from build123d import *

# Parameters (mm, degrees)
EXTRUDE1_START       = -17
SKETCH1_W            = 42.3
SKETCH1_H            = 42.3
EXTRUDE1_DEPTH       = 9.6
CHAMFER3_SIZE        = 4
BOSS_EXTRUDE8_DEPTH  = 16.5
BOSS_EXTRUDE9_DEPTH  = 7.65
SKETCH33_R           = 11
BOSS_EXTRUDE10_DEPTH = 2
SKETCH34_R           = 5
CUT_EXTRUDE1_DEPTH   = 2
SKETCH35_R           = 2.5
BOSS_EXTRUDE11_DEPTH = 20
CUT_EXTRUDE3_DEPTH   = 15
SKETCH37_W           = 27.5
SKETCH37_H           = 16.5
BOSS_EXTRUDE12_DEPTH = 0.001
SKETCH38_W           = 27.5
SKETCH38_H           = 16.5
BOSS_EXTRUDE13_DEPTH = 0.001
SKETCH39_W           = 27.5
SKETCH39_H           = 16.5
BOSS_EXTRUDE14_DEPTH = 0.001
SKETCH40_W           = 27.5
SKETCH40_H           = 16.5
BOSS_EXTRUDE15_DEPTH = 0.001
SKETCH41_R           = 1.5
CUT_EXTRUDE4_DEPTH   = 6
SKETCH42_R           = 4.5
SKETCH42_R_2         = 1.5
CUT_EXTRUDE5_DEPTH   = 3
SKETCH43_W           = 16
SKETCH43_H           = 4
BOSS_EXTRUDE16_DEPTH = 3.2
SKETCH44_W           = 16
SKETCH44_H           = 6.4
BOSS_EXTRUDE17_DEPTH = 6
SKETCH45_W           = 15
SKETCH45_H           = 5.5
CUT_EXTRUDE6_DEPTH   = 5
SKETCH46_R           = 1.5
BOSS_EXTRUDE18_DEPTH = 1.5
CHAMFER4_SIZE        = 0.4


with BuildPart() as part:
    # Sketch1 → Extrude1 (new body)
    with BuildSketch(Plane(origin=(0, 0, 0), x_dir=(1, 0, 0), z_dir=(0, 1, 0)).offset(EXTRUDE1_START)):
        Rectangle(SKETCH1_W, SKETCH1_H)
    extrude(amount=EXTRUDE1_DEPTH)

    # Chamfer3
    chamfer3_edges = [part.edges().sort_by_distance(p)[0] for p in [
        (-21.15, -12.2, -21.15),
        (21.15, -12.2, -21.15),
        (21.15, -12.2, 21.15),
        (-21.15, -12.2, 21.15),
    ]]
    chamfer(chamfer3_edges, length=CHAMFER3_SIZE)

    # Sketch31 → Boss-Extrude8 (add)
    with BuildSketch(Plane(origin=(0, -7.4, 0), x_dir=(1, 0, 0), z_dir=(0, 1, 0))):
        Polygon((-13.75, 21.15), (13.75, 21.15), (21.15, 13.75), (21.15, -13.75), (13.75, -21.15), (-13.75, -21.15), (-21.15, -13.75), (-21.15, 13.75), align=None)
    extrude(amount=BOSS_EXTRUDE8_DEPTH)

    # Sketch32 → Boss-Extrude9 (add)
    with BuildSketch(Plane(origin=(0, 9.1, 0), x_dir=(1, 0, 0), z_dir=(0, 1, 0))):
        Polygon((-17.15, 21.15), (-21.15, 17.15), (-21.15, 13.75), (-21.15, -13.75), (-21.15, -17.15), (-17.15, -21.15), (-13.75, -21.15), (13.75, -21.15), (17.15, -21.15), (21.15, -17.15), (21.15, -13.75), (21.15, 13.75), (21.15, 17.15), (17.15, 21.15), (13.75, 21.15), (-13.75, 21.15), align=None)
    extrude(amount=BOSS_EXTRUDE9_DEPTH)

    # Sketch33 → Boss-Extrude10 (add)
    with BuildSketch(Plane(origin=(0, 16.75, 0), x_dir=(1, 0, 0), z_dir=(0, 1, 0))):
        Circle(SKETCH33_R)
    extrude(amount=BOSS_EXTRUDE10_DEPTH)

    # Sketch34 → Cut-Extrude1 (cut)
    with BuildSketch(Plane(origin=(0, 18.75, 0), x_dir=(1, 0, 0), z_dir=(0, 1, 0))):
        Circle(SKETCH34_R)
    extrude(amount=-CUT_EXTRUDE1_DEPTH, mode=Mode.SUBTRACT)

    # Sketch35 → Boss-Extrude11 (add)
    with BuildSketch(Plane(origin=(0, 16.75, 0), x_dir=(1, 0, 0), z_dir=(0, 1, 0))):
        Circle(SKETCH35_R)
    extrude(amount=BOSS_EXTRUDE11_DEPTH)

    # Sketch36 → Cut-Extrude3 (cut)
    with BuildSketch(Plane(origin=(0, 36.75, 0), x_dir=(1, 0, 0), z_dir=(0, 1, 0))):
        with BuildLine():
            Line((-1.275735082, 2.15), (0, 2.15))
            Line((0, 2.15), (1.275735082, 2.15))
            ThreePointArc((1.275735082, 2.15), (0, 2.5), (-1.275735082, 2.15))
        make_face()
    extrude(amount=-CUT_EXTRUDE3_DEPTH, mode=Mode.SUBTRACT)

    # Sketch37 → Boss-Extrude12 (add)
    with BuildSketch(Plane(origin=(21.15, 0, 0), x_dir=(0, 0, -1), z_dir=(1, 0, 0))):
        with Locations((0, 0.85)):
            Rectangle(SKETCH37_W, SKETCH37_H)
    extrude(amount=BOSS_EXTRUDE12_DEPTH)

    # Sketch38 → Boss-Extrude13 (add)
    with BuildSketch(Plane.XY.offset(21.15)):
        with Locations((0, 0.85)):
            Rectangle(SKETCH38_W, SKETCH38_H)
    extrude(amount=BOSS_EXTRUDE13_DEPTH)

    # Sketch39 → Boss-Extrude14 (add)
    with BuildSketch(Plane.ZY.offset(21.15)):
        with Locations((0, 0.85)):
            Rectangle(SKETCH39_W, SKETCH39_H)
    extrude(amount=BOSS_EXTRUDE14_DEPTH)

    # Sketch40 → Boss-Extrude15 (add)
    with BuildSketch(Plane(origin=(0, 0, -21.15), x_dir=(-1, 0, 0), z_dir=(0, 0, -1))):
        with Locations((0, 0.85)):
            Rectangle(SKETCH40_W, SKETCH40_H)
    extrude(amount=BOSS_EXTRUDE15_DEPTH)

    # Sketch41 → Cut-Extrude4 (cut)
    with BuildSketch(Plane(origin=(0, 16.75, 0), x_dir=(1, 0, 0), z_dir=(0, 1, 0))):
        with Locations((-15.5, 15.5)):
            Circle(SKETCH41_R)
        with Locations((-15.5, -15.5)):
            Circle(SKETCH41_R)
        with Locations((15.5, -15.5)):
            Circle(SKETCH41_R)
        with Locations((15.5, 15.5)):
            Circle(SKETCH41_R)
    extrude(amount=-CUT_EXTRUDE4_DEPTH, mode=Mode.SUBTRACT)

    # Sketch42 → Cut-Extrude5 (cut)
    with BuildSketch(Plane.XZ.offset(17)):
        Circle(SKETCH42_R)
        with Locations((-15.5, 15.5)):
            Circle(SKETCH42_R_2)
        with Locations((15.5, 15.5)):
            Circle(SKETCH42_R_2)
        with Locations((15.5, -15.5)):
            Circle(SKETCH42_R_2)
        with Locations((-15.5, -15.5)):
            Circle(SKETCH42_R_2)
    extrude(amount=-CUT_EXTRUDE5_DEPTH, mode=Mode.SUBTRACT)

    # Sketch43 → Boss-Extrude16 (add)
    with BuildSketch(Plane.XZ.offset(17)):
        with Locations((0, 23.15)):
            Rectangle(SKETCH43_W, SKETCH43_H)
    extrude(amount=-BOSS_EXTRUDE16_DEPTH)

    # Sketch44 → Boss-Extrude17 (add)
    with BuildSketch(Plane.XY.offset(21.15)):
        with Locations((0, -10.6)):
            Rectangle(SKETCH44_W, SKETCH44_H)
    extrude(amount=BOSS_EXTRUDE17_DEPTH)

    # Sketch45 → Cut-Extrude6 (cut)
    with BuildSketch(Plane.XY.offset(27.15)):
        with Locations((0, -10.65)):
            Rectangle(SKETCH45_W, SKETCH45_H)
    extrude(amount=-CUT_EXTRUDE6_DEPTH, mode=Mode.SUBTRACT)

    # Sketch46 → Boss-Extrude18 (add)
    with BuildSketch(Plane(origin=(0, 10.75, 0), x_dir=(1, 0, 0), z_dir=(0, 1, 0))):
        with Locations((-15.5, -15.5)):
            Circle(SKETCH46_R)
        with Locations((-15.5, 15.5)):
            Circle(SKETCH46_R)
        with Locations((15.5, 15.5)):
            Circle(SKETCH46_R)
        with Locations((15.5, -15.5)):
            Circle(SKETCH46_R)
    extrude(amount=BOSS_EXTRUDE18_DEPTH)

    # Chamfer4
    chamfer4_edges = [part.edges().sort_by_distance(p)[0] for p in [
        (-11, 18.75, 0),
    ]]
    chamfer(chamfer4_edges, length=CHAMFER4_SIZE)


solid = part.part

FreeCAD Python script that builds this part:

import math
import FreeCAD as App
import Part
import Sketcher
from FreeCAD import Vector
Q = App.Units.Quantity


def edges_at(feature, points):
    """Names of the edges that pass closest to the given points."""
    edges = feature.Shape.Edges
    near = lambda p: min(range(len(edges)), key=lambda i: edges[i].distToShape(Part.Vertex(*p))[0])
    return sorted({f"Edge{near(p) + 1}" for p in points})


def add_polygon(sketch, points):
    """Adds a closed chain of lines whose ends are joined by coincident constraints."""
    first, n = sketch.GeometryCount, len(points)
    for a, b in zip(points, points[1:] + points[:1]):
        sketch.addGeometry(Part.LineSegment(App.Vector(*a, 0), App.Vector(*b, 0)), False)
    for i in range(n):
        sketch.addConstraint(Sketcher.Constraint("Coincident", first + i, 2, first + (i + 1) % n, 1))

doc = App.newDocument("Part")
params = doc.addObject("Spreadsheet::Sheet", "Params")
for row, (alias, value) in enumerate([
    ("sketch1_width", "42.3 mm"),
    ("pad1_length", "9.6 mm"),
    ("chamfer_size", "4 mm"),
    ("sketch2_width", "27.5 mm"),
    ("pad2_length", "16.5 mm"),
    ("sketch3_width", "34.3 mm"),
    ("pad3_length", "7.65 mm"),
    ("sketch4_diameter", "22 mm"),
    ("pad4_length", "2 mm"),
    ("sketch5_diameter", "10 mm"),
    ("pocket1_length", "2 mm"),
    ("sketch6_diameter", "5 mm"),
    ("pad5_length", "20 mm"),
    ("sketch7_radius", "2.5 mm"),
    ("pocket2_length", "15 mm"),
    ("sketch8_width", "16.5 mm"),
    ("sketch8_height", "27.5 mm"),
    ("pad6_length", "0.001 mm"),
    ("sketch9_width", "27.5 mm"),
    ("sketch9_height", "16.5 mm"),
    ("pad7_length", "0.001 mm"),
    ("sketch10_width", "16.5 mm"),
    ("sketch10_height", "27.5 mm"),
    ("pad8_length", "0.001 mm"),
    ("sketch11_width", "27.5 mm"),
    ("sketch11_height", "16.5 mm"),
    ("pad9_length", "0.001 mm"),
    ("sketch12_diameter", "3 mm"),
    ("pocket3_length", "6 mm"),
    ("sketch13_diameter", "9 mm"),
    ("sketch13_diameter2", "3 mm"),
    ("pocket4_length", "3 mm"),
    ("sketch14_width", "16 mm"),
    ("sketch14_height", "4 mm"),
    ("pad10_length", "3.2 mm"),
    ("sketch15_width", "16 mm"),
    ("sketch15_height", "6.4 mm"),
    ("pad11_length", "6 mm"),
    ("sketch16_width", "15 mm"),
    ("sketch16_height", "5.5 mm"),
    ("pocket5_length", "5 mm"),
    ("sketch17_diameter", "3 mm"),
    ("pad12_length", "1.5 mm"),
    ("chamfer2_size", "0.4 mm"),
], start=1):
    params.set(f"A{row}", alias)
    params.set(f"B{row}", "=" + value)
    params.setAlias(f"B{row}", alias)

body = doc.addObject("PartDesign::Body", "Body")

sketch1 = body.newObject("Sketcher::SketchObject", "Sketch")
sketch1.AttachmentSupport = (doc.getObject("XZ_Plane"), [""])
sketch1.MapMode = "FlatFace"
sketch1.AttachmentOffset = App.Placement(Vector(0, 0, 17), App.Rotation())
add_polygon(sketch1, [(-21.15, -21.15), (-21.15, 21.15), (21.15, 21.15), (21.15, -21.15)])
sketch1.addConstraint(Sketcher.Constraint("Vertical", 0))
sketch1.addConstraint(Sketcher.Constraint("Horizontal", 1))
sketch1.addConstraint(Sketcher.Constraint("Vertical", 2))
sketch1.addConstraint(Sketcher.Constraint("Horizontal", 3))
sketch1.addConstraint(Sketcher.Constraint("Symmetric", 0, 2, 2, 2, -1, 1))
sketch1.addConstraint(Sketcher.Constraint("Equal", 3, 0))
sketch1.addConstraint(Sketcher.Constraint("DistanceX", 1, 1, 1, 2, Q("42.3 mm")))
sketch1.setExpression("Constraints[10]", "Params.sketch1_width")
pad1 = body.newObject("PartDesign::Pad", "Pad")
pad1.Profile = sketch1
pad1.setExpression("Length", "Params.pad1_length")
pad1.Reversed = True
doc.recompute()

chamfer = body.newObject("PartDesign::Chamfer", "Chamfer")
chamfer.Base = (pad1, edges_at(pad1, [
    (-21.15, -12.2, -21.15),
    (21.15, -12.2, -21.15),
    (21.15, -12.2, 21.15),
    (-21.15, -12.2, 21.15),
]))
chamfer.setExpression("Size", "Params.chamfer_size")

sketch2 = body.newObject("Sketcher::SketchObject", "Sketch001")
sketch2.AttachmentSupport = (doc.getObject("XZ_Plane"), [""])
sketch2.MapMode = "FlatFace"
sketch2.AttachmentOffset = App.Placement(Vector(0, 0, 7.4), App.Rotation())
add_polygon(sketch2, [(13.75, -21.15), (-13.75, -21.15), (-21.15, -13.75), (-21.15, 13.75), (-13.75, 21.15), (13.75, 21.15), (21.15, 13.75), (21.15, -13.75)])
sketch2.addConstraint(Sketcher.Constraint("Horizontal", 0))
sketch2.addConstraint(Sketcher.Constraint("Vertical", 2))
sketch2.addConstraint(Sketcher.Constraint("Horizontal", 4))
sketch2.addConstraint(Sketcher.Constraint("Vertical", 6))
sketch2.addConstraint(Sketcher.Constraint("Symmetric", 0, 2, 4, 2, -1, 1))
sketch2.addConstraint(Sketcher.Constraint("Symmetric", 1, 2, 5, 2, -1, 1))
sketch2.addConstraint(Sketcher.Constraint("Perpendicular", 1, 3))
sketch2.addConstraint(Sketcher.Constraint("Perpendicular", 5, 7))
sketch2.addConstraint(Sketcher.Constraint("Horizontal", 2, 2, 5, 2))
sketch2.addConstraint(Sketcher.Constraint("Horizontal", 1, 2, 6, 2))
sketch2.addConstraint(Sketcher.Constraint("Vertical", 0, 2, 3, 2))
sketch2.addConstraint(Sketcher.Constraint("Equal", 4, 2))
sketch2.addConstraint(Sketcher.Constraint("DistanceX", 0, 2, 0, 1, Q("27.5 mm")))
sketch2.addConstraint(Sketcher.Constraint("DistanceX", 1, 2, 0, 2, Q("7.4 mm")))
sketch2.setExpression("Constraints[20]", "Params.sketch2_width")
pad2 = body.newObject("PartDesign::Pad", "Pad001")
pad2.Profile = sketch2
pad2.setExpression("Length", "Params.pad2_length")
pad2.Reversed = True

sketch3 = body.newObject("Sketcher::SketchObject", "Sketch002")
sketch3.AttachmentSupport = (doc.getObject("XZ_Plane"), [""])
sketch3.MapMode = "FlatFace"
sketch3.AttachmentOffset = App.Placement(Vector(0, 0, -9.1), App.Rotation())
add_polygon(sketch3, [(-17.15, -21.15), (-21.15, -17.15), (-21.15, 17.15), (-17.15, 21.15), (17.15, 21.15), (21.15, 17.15), (21.15, -17.15), (17.15, -21.15)])
sketch3.addConstraint(Sketcher.Constraint("Vertical", 1))
sketch3.addConstraint(Sketcher.Constraint("Horizontal", 3))
sketch3.addConstraint(Sketcher.Constraint("Vertical", 5))
sketch3.addConstraint(Sketcher.Constraint("Horizontal", 7))
sketch3.addConstraint(Sketcher.Constraint("Symmetric", 0, 2, 4, 2, -1, 1))
sketch3.addConstraint(Sketcher.Constraint("Symmetric", 2, 2, 6, 2, -1, 1))
sketch3.addConstraint(Sketcher.Constraint("Perpendicular", 0, 2))
sketch3.addConstraint(Sketcher.Constraint("Perpendicular", 2, 4))
sketch3.addConstraint(Sketcher.Constraint("Perpendicular", 4, 6))
sketch3.addConstraint(Sketcher.Constraint("Horizontal", 1, 2, 4, 2))
sketch3.addConstraint(Sketcher.Constraint("Vertical", 3, 2, 6, 2))
sketch3.addConstraint(Sketcher.Constraint("Equal", 7, 1))
sketch3.addConstraint(Sketcher.Constraint("DistanceX", 3, 1, 3, 2, Q("34.3 mm")))
sketch3.addConstraint(Sketcher.Constraint("DistanceX", 1, 2, 2, 2, Q("4 mm")))
sketch3.setExpression("Constraints[20]", "Params.sketch3_width")
pad3 = body.newObject("PartDesign::Pad", "Pad002")
pad3.Profile = sketch3
pad3.setExpression("Length", "Params.pad3_length")
pad3.Reversed = True

sketch4 = body.newObject("Sketcher::SketchObject", "Sketch003")
sketch4.AttachmentSupport = (doc.getObject("XZ_Plane"), [""])
sketch4.MapMode = "FlatFace"
sketch4.AttachmentOffset = App.Placement(Vector(0, 0, -16.75), App.Rotation())
sketch4.addGeometry(Part.Circle(Vector(0, 0, 0), Vector(0, 0, 1), 11), False)
sketch4.addConstraint(Sketcher.Constraint("Coincident", 0, 3, -1, 1))
sketch4.addConstraint(Sketcher.Constraint("Diameter", 0, Q("22 mm")))
sketch4.setExpression("Constraints[1]", "Params.sketch4_diameter")
pad4 = body.newObject("PartDesign::Pad", "Pad003")
pad4.Profile = sketch4
pad4.setExpression("Length", "Params.pad4_length")
pad4.Reversed = True

sketch5 = body.newObject("Sketcher::SketchObject", "Sketch004")
sketch5.AttachmentSupport = (doc.getObject("XZ_Plane"), [""])
sketch5.MapMode = "FlatFace"
sketch5.AttachmentOffset = App.Placement(Vector(0, 0, -18.75), App.Rotation())
sketch5.addGeometry(Part.Circle(Vector(0, 0, 0), Vector(0, 0, 1), 5), False)
sketch5.addConstraint(Sketcher.Constraint("Coincident", 0, 3, -1, 1))
sketch5.addConstraint(Sketcher.Constraint("Diameter", 0, Q("10 mm")))
sketch5.setExpression("Constraints[1]", "Params.sketch5_diameter")
pocket1 = body.newObject("PartDesign::Pocket", "Pocket")
pocket1.Profile = sketch5
pocket1.setExpression("Length", "Params.pocket1_length")
pocket1.Reversed = True

sketch6 = body.newObject("Sketcher::SketchObject", "Sketch005")
sketch6.AttachmentSupport = (doc.getObject("XZ_Plane"), [""])
sketch6.MapMode = "FlatFace"
sketch6.AttachmentOffset = App.Placement(Vector(0, 0, -16.75), App.Rotation())
sketch6.addGeometry(Part.Circle(Vector(0, 0, 0), Vector(0, 0, 1), 2.5), False)
sketch6.addConstraint(Sketcher.Constraint("Coincident", 0, 3, -1, 1))
sketch6.addConstraint(Sketcher.Constraint("Diameter", 0, Q("5 mm")))
sketch6.setExpression("Constraints[1]", "Params.sketch6_diameter")
pad5 = body.newObject("PartDesign::Pad", "Pad004")
pad5.Profile = sketch6
pad5.setExpression("Length", "Params.pad5_length")
pad5.Reversed = True

sketch7 = body.newObject("Sketcher::SketchObject", "Sketch006")
sketch7.AttachmentSupport = (doc.getObject("XZ_Plane"), [""])
sketch7.MapMode = "FlatFace"
sketch7.AttachmentOffset = App.Placement(Vector(0, 0, -36.75), App.Rotation())
sketch7.addGeometry(Part.LineSegment(Vector(-1.275735, -2.15, 0), Vector(1.275735, -2.15, 0)), False)
sketch7.addGeometry(Part.ArcOfCircle(Part.Circle(Vector(0, 0, 0), Vector(0, 0, 1), 2.5), math.radians(-120.683417), math.radians(-59.316583)), False)
sketch7.addConstraint(Sketcher.Constraint("Coincident", 0, 1, 1, 1))
sketch7.addConstraint(Sketcher.Constraint("Coincident", 1, 2, 0, 2))
sketch7.addConstraint(Sketcher.Constraint("Horizontal", 0))
sketch7.addConstraint(Sketcher.Constraint("Coincident", 1, 3, -1, 1))
sketch7.addConstraint(Sketcher.Constraint("Radius", 1, Q("2.5 mm")))
sketch7.addConstraint(Sketcher.Constraint("DistanceY", 0, 1, -1, 1, Q("2.15 mm")))
sketch7.setExpression("Constraints[4]", "Params.sketch7_radius")
pocket2 = body.newObject("PartDesign::Pocket", "Pocket001")
pocket2.Profile = sketch7
pocket2.setExpression("Length", "Params.pocket2_length")
pocket2.Reversed = True

sketch8 = body.newObject("Sketcher::SketchObject", "Sketch007")
sketch8.AttachmentSupport = (doc.getObject("YZ_Plane"), [""])
sketch8.MapMode = "FlatFace"
sketch8.AttachmentOffset = App.Placement(Vector(0, 0, 21.15), App.Rotation())
add_polygon(sketch8, [(9.1, 13.75), (-7.4, 13.75), (-7.4, -13.75), (9.1, -13.75)])
sketch8.addConstraint(Sketcher.Constraint("Horizontal", 0))
sketch8.addConstraint(Sketcher.Constraint("Vertical", 1))
sketch8.addConstraint(Sketcher.Constraint("Horizontal", 2))
sketch8.addConstraint(Sketcher.Constraint("Vertical", 3))
sketch8.addConstraint(Sketcher.Constraint("DistanceX", 0, 2, 0, 1, Q("16.5 mm")))
sketch8.addConstraint(Sketcher.Constraint("DistanceY", 1, 2, 1, 1, Q("27.5 mm")))
sketch8.addConstraint(Sketcher.Constraint("DistanceX", 0, 2, -1, 1, Q("7.4 mm")))
sketch8.addConstraint(Sketcher.Constraint("DistanceY", -1, 1, 0, 2, Q("13.75 mm")))
sketch8.setExpression("Constraints[8]", "Params.sketch8_width")
sketch8.setExpression("Constraints[9]", "Params.sketch8_height")
pad6 = body.newObject("PartDesign::Pad", "Pad005")
pad6.Profile = sketch8
pad6.setExpression("Length", "Params.pad6_length")

sketch9 = body.newObject("Sketcher::SketchObject", "Sketch008")
sketch9.AttachmentSupport = (doc.getObject("XY_Plane"), [""])
sketch9.MapMode = "FlatFace"
sketch9.AttachmentOffset = App.Placement(Vector(0, 0, 21.15), App.Rotation())
add_polygon(sketch9, [(-13.75, 9.1), (-13.75, -7.4), (13.75, -7.4), (13.75, 9.1)])
sketch9.addConstraint(Sketcher.Constraint("Vertical", 0))
sketch9.addConstraint(Sketcher.Constraint("Horizontal", 1))
sketch9.addConstraint(Sketcher.Constraint("Vertical", 2))
sketch9.addConstraint(Sketcher.Constraint("Horizontal", 3))
sketch9.addConstraint(Sketcher.Constraint("DistanceX", 1, 1, 1, 2, Q("27.5 mm")))
sketch9.addConstraint(Sketcher.Constraint("DistanceY", 0, 2, 0, 1, Q("16.5 mm")))
sketch9.addConstraint(Sketcher.Constraint("DistanceY", 0, 2, -1, 1, Q("7.4 mm")))
sketch9.addConstraint(Sketcher.Constraint("DistanceX", 0, 2, -1, 1, Q("13.75 mm")))
sketch9.setExpression("Constraints[8]", "Params.sketch9_width")
sketch9.setExpression("Constraints[9]", "Params.sketch9_height")
pad7 = body.newObject("PartDesign::Pad", "Pad006")
pad7.Profile = sketch9
pad7.setExpression("Length", "Params.pad7_length")

sketch10 = body.newObject("Sketcher::SketchObject", "Sketch009")
sketch10.AttachmentSupport = (doc.getObject("YZ_Plane"), [""])
sketch10.MapMode = "FlatFace"
sketch10.AttachmentOffset = App.Placement(Vector(0, 0, -21.15), App.Rotation())
add_polygon(sketch10, [(9.1, -13.75), (-7.4, -13.75), (-7.4, 13.75), (9.1, 13.75)])
sketch10.addConstraint(Sketcher.Constraint("Horizontal", 0))
sketch10.addConstraint(Sketcher.Constraint("Vertical", 1))
sketch10.addConstraint(Sketcher.Constraint("Horizontal", 2))
sketch10.addConstraint(Sketcher.Constraint("Vertical", 3))
sketch10.addConstraint(Sketcher.Constraint("DistanceX", 0, 2, 0, 1, Q("16.5 mm")))
sketch10.addConstraint(Sketcher.Constraint("DistanceY", 1, 1, 1, 2, Q("27.5 mm")))
sketch10.addConstraint(Sketcher.Constraint("DistanceX", 0, 2, -1, 1, Q("7.4 mm")))
sketch10.addConstraint(Sketcher.Constraint("DistanceY", 0, 2, -1, 1, Q("13.75 mm")))
sketch10.setExpression("Constraints[8]", "Params.sketch10_width")
sketch10.setExpression("Constraints[9]", "Params.sketch10_height")
pad8 = body.newObject("PartDesign::Pad", "Pad007")
pad8.Profile = sketch10
pad8.setExpression("Length", "Params.pad8_length")
pad8.Reversed = True

sketch11 = body.newObject("Sketcher::SketchObject", "Sketch010")
sketch11.AttachmentSupport = (doc.getObject("XY_Plane"), [""])
sketch11.MapMode = "FlatFace"
sketch11.AttachmentOffset = App.Placement(Vector(0, 0, -21.15), App.Rotation())
add_polygon(sketch11, [(13.75, 9.1), (13.75, -7.4), (-13.75, -7.4), (-13.75, 9.1)])
sketch11.addConstraint(Sketcher.Constraint("Vertical", 0))
sketch11.addConstraint(Sketcher.Constraint("Horizontal", 1))
sketch11.addConstraint(Sketcher.Constraint("Vertical", 2))
sketch11.addConstraint(Sketcher.Constraint("Horizontal", 3))
sketch11.addConstraint(Sketcher.Constraint("DistanceX", 1, 2, 1, 1, Q("27.5 mm")))
sketch11.addConstraint(Sketcher.Constraint("DistanceY", 0, 2, 0, 1, Q("16.5 mm")))
sketch11.addConstraint(Sketcher.Constraint("DistanceY", 0, 2, -1, 1, Q("7.4 mm")))
sketch11.addConstraint(Sketcher.Constraint("DistanceX", -1, 1, 0, 2, Q("13.75 mm")))
sketch11.setExpression("Constraints[8]", "Params.sketch11_width")
sketch11.setExpression("Constraints[9]", "Params.sketch11_height")
pad9 = body.newObject("PartDesign::Pad", "Pad008")
pad9.Profile = sketch11
pad9.setExpression("Length", "Params.pad9_length")
pad9.Reversed = True

sketch12 = body.newObject("Sketcher::SketchObject", "Sketch011")
sketch12.AttachmentSupport = (doc.getObject("XZ_Plane"), [""])
sketch12.MapMode = "FlatFace"
sketch12.AttachmentOffset = App.Placement(Vector(0, 0, -16.75), App.Rotation())
sketch12.addGeometry(Part.Circle(Vector(-15.5, -15.5, 0), Vector(0, 0, 1), 1.5), False)
sketch12.addGeometry(Part.Circle(Vector(-15.5, 15.5, 0), Vector(0, 0, 1), 1.5), False)
sketch12.addGeometry(Part.Circle(Vector(15.5, 15.5, 0), Vector(0, 0, 1), 1.5), False)
sketch12.addGeometry(Part.Circle(Vector(15.5, -15.5, 0), Vector(0, 0, 1), 1.5), False)
sketch12.addConstraint(Sketcher.Constraint("Equal", 0, 1))
sketch12.addConstraint(Sketcher.Constraint("Equal", 1, 2))
sketch12.addConstraint(Sketcher.Constraint("Equal", 2, 3))
sketch12.addConstraint(Sketcher.Constraint("Symmetric", 0, 3, 2, 3, -1, 1))
sketch12.addConstraint(Sketcher.Constraint("Symmetric", 1, 3, 3, 3, -1, 1))
sketch12.addConstraint(Sketcher.Constraint("Symmetric", 1, 3, 2, 3, -2))
sketch12.addConstraint(Sketcher.Constraint("Diameter", 0, Q("3 mm")))
sketch12.addConstraint(Sketcher.Constraint("DistanceY", 0, 3, 1, 3, Q("31 mm")))
sketch12.addConstraint(Sketcher.Constraint("DistanceX", 1, 3, 2, 3, Q("31 mm")))
sketch12.setExpression("Constraints[6]", "Params.sketch12_diameter")
pocket3 = body.newObject("PartDesign::Pocket", "Pocket002")
pocket3.Profile = sketch12
pocket3.setExpression("Length", "Params.pocket3_length")
pocket3.Reversed = True

sketch13 = body.newObject("Sketcher::SketchObject", "Sketch012")
sketch13.AttachmentSupport = (doc.getObject("XZ_Plane"), [""])
sketch13.MapMode = "FlatFace"
sketch13.AttachmentOffset = App.Placement(Vector(0, 0, 17), App.Rotation())
sketch13.addGeometry(Part.Circle(Vector(0, 0, 0), Vector(0, 0, 1), 4.5), False)
sketch13.addGeometry(Part.Circle(Vector(-15.5, 15.5, 0), Vector(0, 0, 1), 1.5), False)
sketch13.addGeometry(Part.Circle(Vector(15.5, 15.5, 0), Vector(0, 0, 1), 1.5), False)
sketch13.addGeometry(Part.Circle(Vector(15.5, -15.5, 0), Vector(0, 0, 1), 1.5), False)
sketch13.addGeometry(Part.Circle(Vector(-15.5, -15.5, 0), Vector(0, 0, 1), 1.5), False)
sketch13.addConstraint(Sketcher.Constraint("Coincident", 0, 3, -1, 1))
sketch13.addConstraint(Sketcher.Constraint("Equal", 1, 2))
sketch13.addConstraint(Sketcher.Constraint("Equal", 2, 3))
sketch13.addConstraint(Sketcher.Constraint("Equal", 3, 4))
sketch13.addConstraint(Sketcher.Constraint("Symmetric", 1, 3, 3, 3, -1, 1))
sketch13.addConstraint(Sketcher.Constraint("Symmetric", 2, 3, 4, 3, -1, 1))
sketch13.addConstraint(Sketcher.Constraint("Symmetric", 1, 3, 2, 3, -2))
sketch13.addConstraint(Sketcher.Constraint("Diameter", 0, Q("9 mm")))
sketch13.addConstraint(Sketcher.Constraint("Diameter", 1, Q("3 mm")))
sketch13.addConstraint(Sketcher.Constraint("DistanceX", 1, 3, 2, 3, Q("31 mm")))
sketch13.addConstraint(Sketcher.Constraint("DistanceY", 3, 3, 2, 3, Q("31 mm")))
sketch13.setExpression("Constraints[7]", "Params.sketch13_diameter")
sketch13.setExpression("Constraints[8]", "Params.sketch13_diameter2")
pocket4 = body.newObject("PartDesign::Pocket", "Pocket003")
pocket4.Profile = sketch13
pocket4.setExpression("Length", "Params.pocket4_length")

sketch14 = body.newObject("Sketcher::SketchObject", "Sketch013")
sketch14.AttachmentSupport = (doc.getObject("XZ_Plane"), [""])
sketch14.MapMode = "FlatFace"
sketch14.AttachmentOffset = App.Placement(Vector(0, 0, 17), App.Rotation())
add_polygon(sketch14, [(-8, 25.15), (-8, 21.15), (8, 21.15), (8, 25.15)])
sketch14.addConstraint(Sketcher.Constraint("Vertical", 0))
sketch14.addConstraint(Sketcher.Constraint("Horizontal", 1))
sketch14.addConstraint(Sketcher.Constraint("Vertical", 2))
sketch14.addConstraint(Sketcher.Constraint("Horizontal", 3))
sketch14.addConstraint(Sketcher.Constraint("DistanceX", 1, 1, 1, 2, Q("16 mm")))
sketch14.addConstraint(Sketcher.Constraint("DistanceY", 0, 2, 0, 1, Q("4 mm")))
sketch14.addConstraint(Sketcher.Constraint("DistanceX", 0, 2, -1, 1, Q("8 mm")))
sketch14.addConstraint(Sketcher.Constraint("DistanceY", -1, 1, 0, 2, Q("21.15 mm")))
sketch14.setExpression("Constraints[8]", "Params.sketch14_width")
sketch14.setExpression("Constraints[9]", "Params.sketch14_height")
pad10 = body.newObject("PartDesign::Pad", "Pad009")
pad10.Profile = sketch14
pad10.setExpression("Length", "Params.pad10_length")
pad10.Reversed = True

sketch15 = body.newObject("Sketcher::SketchObject", "Sketch014")
sketch15.AttachmentSupport = (doc.getObject("XY_Plane"), [""])
sketch15.MapMode = "FlatFace"
sketch15.AttachmentOffset = App.Placement(Vector(0, 0, 21.15), App.Rotation())
add_polygon(sketch15, [(-8, -7.4), (-8, -13.8), (8, -13.8), (8, -7.4)])
sketch15.addConstraint(Sketcher.Constraint("Vertical", 0))
sketch15.addConstraint(Sketcher.Constraint("Horizontal", 1))
sketch15.addConstraint(Sketcher.Constraint("Vertical", 2))
sketch15.addConstraint(Sketcher.Constraint("Horizontal", 3))
sketch15.addConstraint(Sketcher.Constraint("DistanceX", 1, 1, 1, 2, Q("16 mm")))
sketch15.addConstraint(Sketcher.Constraint("DistanceY", 0, 2, 0, 1, Q("6.4 mm")))
sketch15.addConstraint(Sketcher.Constraint("DistanceX", 0, 2, -1, 1, Q("8 mm")))
sketch15.addConstraint(Sketcher.Constraint("DistanceY", 0, 2, -1, 1, Q("13.8 mm")))
sketch15.setExpression("Constraints[8]", "Params.sketch15_width")
sketch15.setExpression("Constraints[9]", "Params.sketch15_height")
pad11 = body.newObject("PartDesign::Pad", "Pad010")
pad11.Profile = sketch15
pad11.setExpression("Length", "Params.pad11_length")

sketch16 = body.newObject("Sketcher::SketchObject", "Sketch015")
sketch16.AttachmentSupport = (doc.getObject("XY_Plane"), [""])
sketch16.MapMode = "FlatFace"
sketch16.AttachmentOffset = App.Placement(Vector(0, 0, 27.15), App.Rotation())
add_polygon(sketch16, [(-7.5, -7.9), (-7.5, -13.4), (7.5, -13.4), (7.5, -7.9)])
sketch16.addConstraint(Sketcher.Constraint("Vertical", 0))
sketch16.addConstraint(Sketcher.Constraint("Horizontal", 1))
sketch16.addConstraint(Sketcher.Constraint("Vertical", 2))
sketch16.addConstraint(Sketcher.Constraint("Horizontal", 3))
sketch16.addConstraint(Sketcher.Constraint("DistanceX", 1, 1, 1, 2, Q("15 mm")))
sketch16.addConstraint(Sketcher.Constraint("DistanceY", 0, 2, 0, 1, Q("5.5 mm")))
sketch16.addConstraint(Sketcher.Constraint("DistanceX", 0, 2, -1, 1, Q("7.5 mm")))
sketch16.addConstraint(Sketcher.Constraint("DistanceY", 0, 2, -1, 1, Q("13.4 mm")))
sketch16.setExpression("Constraints[8]", "Params.sketch16_width")
sketch16.setExpression("Constraints[9]", "Params.sketch16_height")
pocket5 = body.newObject("PartDesign::Pocket", "Pocket004")
pocket5.Profile = sketch16
pocket5.setExpression("Length", "Params.pocket5_length")

sketch17 = body.newObject("Sketcher::SketchObject", "Sketch016")
sketch17.AttachmentSupport = (doc.getObject("XZ_Plane"), [""])
sketch17.MapMode = "FlatFace"
sketch17.AttachmentOffset = App.Placement(Vector(0, 0, -10.75), App.Rotation())
sketch17.addGeometry(Part.Circle(Vector(-15.5, 15.5, 0), Vector(0, 0, 1), 1.5), False)
sketch17.addGeometry(Part.Circle(Vector(-15.5, -15.5, 0), Vector(0, 0, 1), 1.5), False)
sketch17.addGeometry(Part.Circle(Vector(15.5, -15.5, 0), Vector(0, 0, 1), 1.5), False)
sketch17.addGeometry(Part.Circle(Vector(15.5, 15.5, 0), Vector(0, 0, 1), 1.5), False)
sketch17.addConstraint(Sketcher.Constraint("Equal", 0, 1))
sketch17.addConstraint(Sketcher.Constraint("Equal", 1, 2))
sketch17.addConstraint(Sketcher.Constraint("Equal", 2, 3))
sketch17.addConstraint(Sketcher.Constraint("Symmetric", 0, 3, 2, 3, -1, 1))
sketch17.addConstraint(Sketcher.Constraint("Symmetric", 1, 3, 3, 3, -1, 1))
sketch17.addConstraint(Sketcher.Constraint("Symmetric", 1, 3, 2, 3, -2))
sketch17.addConstraint(Sketcher.Constraint("Diameter", 0, Q("3 mm")))
sketch17.addConstraint(Sketcher.Constraint("DistanceY", 1, 3, 0, 3, Q("31 mm")))
sketch17.addConstraint(Sketcher.Constraint("DistanceX", 1, 3, 2, 3, Q("31 mm")))
sketch17.setExpression("Constraints[6]", "Params.sketch17_diameter")
pad12 = body.newObject("PartDesign::Pad", "Pad011")
pad12.Profile = sketch17
pad12.setExpression("Length", "Params.pad12_length")
pad12.Reversed = True
doc.recompute()

chamfer2 = body.newObject("PartDesign::Chamfer", "Chamfer001")
chamfer2.Base = (pad12, edges_at(pad12, [(-11, 18.75, 0)]))
chamfer2.setExpression("Size", "Params.chamfer2_size")

doc.recompute()
